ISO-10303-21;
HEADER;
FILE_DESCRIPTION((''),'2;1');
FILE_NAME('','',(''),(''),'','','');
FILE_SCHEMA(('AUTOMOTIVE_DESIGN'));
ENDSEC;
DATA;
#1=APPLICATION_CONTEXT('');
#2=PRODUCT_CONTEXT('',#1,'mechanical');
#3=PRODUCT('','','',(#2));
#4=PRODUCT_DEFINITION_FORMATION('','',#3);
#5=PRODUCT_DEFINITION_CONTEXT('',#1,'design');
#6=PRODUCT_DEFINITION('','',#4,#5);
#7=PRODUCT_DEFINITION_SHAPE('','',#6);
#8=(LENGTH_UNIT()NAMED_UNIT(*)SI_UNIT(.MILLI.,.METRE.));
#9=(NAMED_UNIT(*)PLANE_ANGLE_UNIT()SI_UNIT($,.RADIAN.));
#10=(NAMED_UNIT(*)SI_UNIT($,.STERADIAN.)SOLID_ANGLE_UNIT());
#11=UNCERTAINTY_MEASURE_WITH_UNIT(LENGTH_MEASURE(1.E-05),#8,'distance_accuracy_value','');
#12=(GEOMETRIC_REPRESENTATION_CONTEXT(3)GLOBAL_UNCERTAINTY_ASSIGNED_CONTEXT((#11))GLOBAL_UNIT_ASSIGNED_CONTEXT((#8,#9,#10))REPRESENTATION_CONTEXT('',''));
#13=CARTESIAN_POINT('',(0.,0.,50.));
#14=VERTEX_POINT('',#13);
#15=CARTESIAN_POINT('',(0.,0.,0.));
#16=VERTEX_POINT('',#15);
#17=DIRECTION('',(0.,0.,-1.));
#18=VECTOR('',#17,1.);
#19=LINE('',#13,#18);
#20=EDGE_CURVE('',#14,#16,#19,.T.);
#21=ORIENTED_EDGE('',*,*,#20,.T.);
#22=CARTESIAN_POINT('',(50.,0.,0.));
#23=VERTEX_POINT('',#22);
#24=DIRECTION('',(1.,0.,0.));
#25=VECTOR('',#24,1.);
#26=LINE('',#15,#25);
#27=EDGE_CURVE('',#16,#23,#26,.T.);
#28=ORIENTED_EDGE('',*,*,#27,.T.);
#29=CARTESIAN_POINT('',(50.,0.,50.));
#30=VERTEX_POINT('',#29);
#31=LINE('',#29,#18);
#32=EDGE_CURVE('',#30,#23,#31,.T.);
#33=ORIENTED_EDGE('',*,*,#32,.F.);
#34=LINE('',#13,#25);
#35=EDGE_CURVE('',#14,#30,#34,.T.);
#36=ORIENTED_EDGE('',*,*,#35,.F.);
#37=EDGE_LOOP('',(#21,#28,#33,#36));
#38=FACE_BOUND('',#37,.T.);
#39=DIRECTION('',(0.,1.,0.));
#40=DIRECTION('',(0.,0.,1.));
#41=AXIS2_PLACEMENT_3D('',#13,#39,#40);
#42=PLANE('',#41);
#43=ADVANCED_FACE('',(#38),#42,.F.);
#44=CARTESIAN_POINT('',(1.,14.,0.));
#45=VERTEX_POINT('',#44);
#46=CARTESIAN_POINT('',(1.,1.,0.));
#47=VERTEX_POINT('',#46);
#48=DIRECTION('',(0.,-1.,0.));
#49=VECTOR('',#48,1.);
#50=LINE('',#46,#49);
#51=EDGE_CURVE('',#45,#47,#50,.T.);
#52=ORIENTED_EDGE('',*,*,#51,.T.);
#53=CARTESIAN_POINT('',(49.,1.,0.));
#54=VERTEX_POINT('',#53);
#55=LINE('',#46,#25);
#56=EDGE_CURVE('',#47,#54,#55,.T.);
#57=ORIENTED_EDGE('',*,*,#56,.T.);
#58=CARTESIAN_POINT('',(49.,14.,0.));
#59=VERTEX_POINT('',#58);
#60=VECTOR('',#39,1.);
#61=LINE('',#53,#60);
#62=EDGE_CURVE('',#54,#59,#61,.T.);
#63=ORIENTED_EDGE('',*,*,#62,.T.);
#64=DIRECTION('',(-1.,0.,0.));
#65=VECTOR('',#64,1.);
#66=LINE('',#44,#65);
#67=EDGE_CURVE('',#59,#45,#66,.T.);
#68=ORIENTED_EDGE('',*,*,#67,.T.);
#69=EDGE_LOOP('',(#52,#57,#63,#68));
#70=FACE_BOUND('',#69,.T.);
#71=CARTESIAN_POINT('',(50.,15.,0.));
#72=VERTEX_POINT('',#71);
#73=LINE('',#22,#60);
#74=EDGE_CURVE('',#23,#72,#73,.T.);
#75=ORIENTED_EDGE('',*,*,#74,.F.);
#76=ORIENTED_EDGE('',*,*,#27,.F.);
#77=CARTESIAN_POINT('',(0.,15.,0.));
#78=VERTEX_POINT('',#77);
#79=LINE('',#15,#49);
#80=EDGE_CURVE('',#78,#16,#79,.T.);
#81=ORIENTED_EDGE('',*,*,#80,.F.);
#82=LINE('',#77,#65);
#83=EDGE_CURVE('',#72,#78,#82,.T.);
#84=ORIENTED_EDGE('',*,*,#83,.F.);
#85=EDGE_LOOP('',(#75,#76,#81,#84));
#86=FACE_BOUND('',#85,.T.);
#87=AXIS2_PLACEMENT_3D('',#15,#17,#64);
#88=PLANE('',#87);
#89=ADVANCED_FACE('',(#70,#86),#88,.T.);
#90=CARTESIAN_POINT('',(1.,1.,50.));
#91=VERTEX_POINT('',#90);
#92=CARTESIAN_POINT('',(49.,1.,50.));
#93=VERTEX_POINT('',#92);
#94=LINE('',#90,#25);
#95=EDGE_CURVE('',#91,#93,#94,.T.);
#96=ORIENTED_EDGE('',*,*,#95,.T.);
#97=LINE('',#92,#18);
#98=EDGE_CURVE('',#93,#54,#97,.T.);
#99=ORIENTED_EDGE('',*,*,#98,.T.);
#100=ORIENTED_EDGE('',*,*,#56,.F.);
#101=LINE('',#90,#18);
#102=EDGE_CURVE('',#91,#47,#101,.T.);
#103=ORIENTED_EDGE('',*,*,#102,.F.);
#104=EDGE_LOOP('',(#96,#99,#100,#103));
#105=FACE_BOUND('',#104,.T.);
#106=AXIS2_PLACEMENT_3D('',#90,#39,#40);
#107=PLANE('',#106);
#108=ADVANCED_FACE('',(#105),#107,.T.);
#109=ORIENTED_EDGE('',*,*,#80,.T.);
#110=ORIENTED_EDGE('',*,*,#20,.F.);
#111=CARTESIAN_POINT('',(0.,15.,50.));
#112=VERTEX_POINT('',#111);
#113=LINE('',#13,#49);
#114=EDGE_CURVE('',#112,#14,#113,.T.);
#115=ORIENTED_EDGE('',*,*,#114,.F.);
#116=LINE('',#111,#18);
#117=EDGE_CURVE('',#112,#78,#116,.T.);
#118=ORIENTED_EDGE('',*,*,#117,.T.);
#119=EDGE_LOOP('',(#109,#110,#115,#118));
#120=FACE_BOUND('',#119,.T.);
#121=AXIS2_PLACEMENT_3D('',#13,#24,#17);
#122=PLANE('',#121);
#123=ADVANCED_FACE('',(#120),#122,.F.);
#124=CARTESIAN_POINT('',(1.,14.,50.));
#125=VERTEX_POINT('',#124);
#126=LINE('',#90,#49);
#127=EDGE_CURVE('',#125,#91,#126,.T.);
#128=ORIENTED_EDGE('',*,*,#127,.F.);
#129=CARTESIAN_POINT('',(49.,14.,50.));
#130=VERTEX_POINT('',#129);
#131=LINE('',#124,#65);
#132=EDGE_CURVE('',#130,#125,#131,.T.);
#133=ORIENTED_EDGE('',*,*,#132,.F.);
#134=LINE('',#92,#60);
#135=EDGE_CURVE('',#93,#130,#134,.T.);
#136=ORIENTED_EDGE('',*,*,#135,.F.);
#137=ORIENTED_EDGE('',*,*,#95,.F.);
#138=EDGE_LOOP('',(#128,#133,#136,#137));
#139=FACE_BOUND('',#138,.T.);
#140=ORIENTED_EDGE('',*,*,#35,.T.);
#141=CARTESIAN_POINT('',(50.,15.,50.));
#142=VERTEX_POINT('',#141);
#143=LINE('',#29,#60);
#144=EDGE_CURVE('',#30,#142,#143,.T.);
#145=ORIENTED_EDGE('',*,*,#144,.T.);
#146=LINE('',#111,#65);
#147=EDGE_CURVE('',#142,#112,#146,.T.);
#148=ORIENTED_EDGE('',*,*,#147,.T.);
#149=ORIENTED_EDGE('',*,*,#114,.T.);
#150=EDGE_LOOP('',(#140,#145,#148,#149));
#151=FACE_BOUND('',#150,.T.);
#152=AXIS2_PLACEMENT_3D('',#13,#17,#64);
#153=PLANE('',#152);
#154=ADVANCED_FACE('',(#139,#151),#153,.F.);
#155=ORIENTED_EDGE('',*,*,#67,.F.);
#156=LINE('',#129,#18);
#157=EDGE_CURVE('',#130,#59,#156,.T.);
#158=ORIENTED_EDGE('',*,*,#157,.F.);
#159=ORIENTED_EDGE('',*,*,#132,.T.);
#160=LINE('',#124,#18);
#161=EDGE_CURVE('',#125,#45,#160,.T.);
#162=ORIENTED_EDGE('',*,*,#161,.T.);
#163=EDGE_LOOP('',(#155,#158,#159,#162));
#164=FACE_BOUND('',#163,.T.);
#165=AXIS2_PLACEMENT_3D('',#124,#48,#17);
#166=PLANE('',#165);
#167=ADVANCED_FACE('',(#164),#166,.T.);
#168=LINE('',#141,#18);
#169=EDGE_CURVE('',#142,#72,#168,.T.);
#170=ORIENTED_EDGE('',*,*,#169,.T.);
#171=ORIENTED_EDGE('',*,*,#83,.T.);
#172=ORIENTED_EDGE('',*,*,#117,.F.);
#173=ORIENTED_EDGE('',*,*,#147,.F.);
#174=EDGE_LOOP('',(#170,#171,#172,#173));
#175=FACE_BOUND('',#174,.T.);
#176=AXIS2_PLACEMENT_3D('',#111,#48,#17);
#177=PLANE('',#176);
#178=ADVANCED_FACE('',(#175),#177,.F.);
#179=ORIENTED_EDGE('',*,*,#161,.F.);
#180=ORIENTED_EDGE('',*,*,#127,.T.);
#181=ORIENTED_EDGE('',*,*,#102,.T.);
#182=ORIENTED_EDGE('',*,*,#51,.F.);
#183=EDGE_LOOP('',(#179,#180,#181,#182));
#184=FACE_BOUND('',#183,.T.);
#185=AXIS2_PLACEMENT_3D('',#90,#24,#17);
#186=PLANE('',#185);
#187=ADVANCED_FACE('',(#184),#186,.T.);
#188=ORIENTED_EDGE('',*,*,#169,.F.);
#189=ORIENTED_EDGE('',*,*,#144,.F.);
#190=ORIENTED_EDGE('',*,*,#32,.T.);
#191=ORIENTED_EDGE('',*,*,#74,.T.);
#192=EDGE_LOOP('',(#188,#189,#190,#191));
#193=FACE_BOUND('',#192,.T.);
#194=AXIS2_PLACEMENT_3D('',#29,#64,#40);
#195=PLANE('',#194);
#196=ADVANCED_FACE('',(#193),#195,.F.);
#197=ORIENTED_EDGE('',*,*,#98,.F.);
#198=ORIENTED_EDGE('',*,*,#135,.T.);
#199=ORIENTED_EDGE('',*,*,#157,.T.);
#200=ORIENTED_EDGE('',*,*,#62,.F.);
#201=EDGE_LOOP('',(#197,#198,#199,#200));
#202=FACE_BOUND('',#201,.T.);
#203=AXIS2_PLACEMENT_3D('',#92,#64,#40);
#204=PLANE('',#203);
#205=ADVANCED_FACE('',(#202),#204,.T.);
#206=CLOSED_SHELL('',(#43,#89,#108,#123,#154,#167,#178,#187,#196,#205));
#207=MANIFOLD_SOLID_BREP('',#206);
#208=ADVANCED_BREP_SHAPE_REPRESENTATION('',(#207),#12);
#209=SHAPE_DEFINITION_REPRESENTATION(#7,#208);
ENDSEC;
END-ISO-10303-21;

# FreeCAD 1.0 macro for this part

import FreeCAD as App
import Part
import Sketcher
from FreeCAD import Vector
Q = App.Units.Quantity


def add_polygon(sketch, points):
    """Adds a closed chain of lines whose ends are joined by coincident constraints."""
    first, n = sketch.GeometryCount, len(points)
    for a, b in zip(points, points[1:] + points[:1]):
        sketch.addGeometry(Part.LineSegment(App.Vector(*a, 0), App.Vector(*b, 0)), False)
    for i in range(n):
        sketch.addConstraint(Sketcher.Constraint("Coincident", first + i, 2, first + (i + 1) % n, 1))

doc = App.newDocument("Part")
body = doc.addObject("PartDesign::Body", "Body")

# Sketch on XY plane
sketch1 = body.newObject("Sketcher::SketchObject", "Sketch")
sketch1.AttachmentSupport = (doc.getObject("XY_Plane"), [""])
sketch1.MapMode = "FlatFace"
add_polygon(sketch1, [(0, 15), (0, 0), (50, 0), (50, 15)])  # lines 0-3
add_polygon(sketch1, [(49, 1), (1, 1), (1, 14), (49, 14)])  # lines 4-7
sketch1.addConstraint([
    Sketcher.Constraint("Vertical", 0),
    Sketcher.Constraint("Horizontal", 1),
    Sketcher.Constraint("Vertical", 2),
    Sketcher.Constraint("Horizontal", 3),
    Sketcher.Constraint("Horizontal", 4),
    Sketcher.Constraint("Vertical", 5),
    Sketcher.Constraint("Horizontal", 6),
    Sketcher.Constraint("Vertical", 7),
    Sketcher.Constraint("Coincident", 0, 2, -1, 1),
    Sketcher.Constraint("DistanceX", 1, 1, 1, 2, Q("50 mm")),
    Sketcher.Constraint("DistanceX", 4, 2, 4, 1, Q("48 mm")),
    Sketcher.Constraint("DistanceY", 0, 2, 0, 1, Q("15 mm")),
    Sketcher.Constraint("DistanceY", 5, 1, 5, 2, Q("13 mm")),
    Sketcher.Constraint("DistanceX", -1, 1, 4, 2, Q("1 mm")),
    Sketcher.Constraint("DistanceY", -1, 1, 4, 2, Q("1 mm")),
])
pad1 = body.newObject("PartDesign::Pad", "Pad")
pad1.Profile = sketch1
pad1.Length = 50

doc.recompute()
